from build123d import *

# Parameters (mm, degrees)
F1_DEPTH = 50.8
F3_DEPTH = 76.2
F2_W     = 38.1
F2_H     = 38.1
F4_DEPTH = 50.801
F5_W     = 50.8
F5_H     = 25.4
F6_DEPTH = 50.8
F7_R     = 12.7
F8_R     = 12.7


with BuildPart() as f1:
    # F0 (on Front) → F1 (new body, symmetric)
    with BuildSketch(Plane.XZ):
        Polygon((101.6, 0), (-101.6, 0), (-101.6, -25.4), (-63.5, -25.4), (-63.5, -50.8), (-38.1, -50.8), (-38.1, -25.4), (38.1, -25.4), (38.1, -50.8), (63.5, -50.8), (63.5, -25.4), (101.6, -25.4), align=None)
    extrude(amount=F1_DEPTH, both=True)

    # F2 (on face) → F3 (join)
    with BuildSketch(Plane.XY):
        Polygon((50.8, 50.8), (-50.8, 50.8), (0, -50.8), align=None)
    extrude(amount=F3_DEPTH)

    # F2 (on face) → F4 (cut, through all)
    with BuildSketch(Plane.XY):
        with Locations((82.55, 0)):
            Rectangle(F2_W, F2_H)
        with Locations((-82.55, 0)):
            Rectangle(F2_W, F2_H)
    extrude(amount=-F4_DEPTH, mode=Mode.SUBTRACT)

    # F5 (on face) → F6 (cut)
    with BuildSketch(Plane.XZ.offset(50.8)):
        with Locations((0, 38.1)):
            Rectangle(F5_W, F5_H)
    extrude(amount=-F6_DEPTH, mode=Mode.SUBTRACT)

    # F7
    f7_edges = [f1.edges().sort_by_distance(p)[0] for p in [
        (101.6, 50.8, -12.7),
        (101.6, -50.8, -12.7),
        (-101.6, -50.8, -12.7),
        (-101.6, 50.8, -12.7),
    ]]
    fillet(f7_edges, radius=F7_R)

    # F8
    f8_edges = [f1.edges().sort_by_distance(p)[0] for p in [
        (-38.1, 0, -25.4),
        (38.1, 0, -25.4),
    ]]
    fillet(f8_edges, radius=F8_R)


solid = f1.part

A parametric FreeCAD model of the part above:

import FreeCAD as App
import Part
import Sketcher
Q = App.Units.Quantity


def edges_at(feature, points):
    """Names of the edges that pass closest to the given points."""
    edges = feature.Shape.Edges
    near = lambda p: min(range(len(edges)), key=lambda i: edges[i].distToShape(Part.Vertex(*p))[0])
    return sorted({f"Edge{near(p) + 1}" for p in points})

doc = App.newDocument("Part")
body = doc.addObject("PartDesign::Body", "Body")

# Sketch on XZ plane
sketch1 = body.newObject("Sketcher::SketchObject", "Sketch")
sketch1.AttachmentSupport = (doc.getObject("XZ_Plane"), [""])
sketch1.MapMode = "FlatFace"
sketch1.addGeometry(Part.LineSegment(App.Vector(102, 0, 0), App.Vector(-102, 0, 0)), False)
sketch1.addGeometry(Part.LineSegment(App.Vector(-102, 0, 0), App.Vector(-102, -25, 0)), False)
sketch1.addGeometry(Part.LineSegment(App.Vector(-102, -25, 0), App.Vector(-64, -25, 0)), False)
sketch1.addGeometry(Part.LineSegment(App.Vector(-64, -25, 0), App.Vector(-64, -51, 0)), False)
sketch1.addGeometry(Part.LineSegment(App.Vector(-64, -51, 0), App.Vector(-38, -51, 0)), False)
sketch1.addGeometry(Part.LineSegment(App.Vector(-38, -51, 0), App.Vector(-38, -25, 0)), False)
sketch1.addGeometry(Part.LineSegment(App.Vector(-38, -25, 0), App.Vector(38, -25, 0)), False)
sketch1.addGeometry(Part.LineSegment(App.Vector(38, -25, 0), App.Vector(38, -51, 0)), False)
sketch1.addGeometry(Part.LineSegment(App.Vector(38, -51, 0), App.Vector(64, -51, 0)), False)
sketch1.addGeometry(Part.LineSegment(App.Vector(64, -51, 0), App.Vector(64, -25, 0)), False)
sketch1.addGeometry(Part.LineSegment(App.Vector(64, -25, 0), App.Vector(102, -25, 0)), False)
sketch1.addGeometry(Part.LineSegment(App.Vector(102, -25, 0), App.Vector(102, 0, 0)), False)
sketch1.addConstraint(Sketcher.Constraint("Coincident", 0, 2, 1, 1))
sketch1.addConstraint(Sketcher.Constraint("Coincident", 1, 2, 2, 1))
sketch1.addConstraint(Sketcher.Constraint("Coincident", 2, 2, 3, 1))
sketch1.addConstraint(Sketcher.Constraint("Coincident", 3, 2, 4, 1))
sketch1.addConstraint(Sketcher.Constraint("Coincident", 4, 2, 5, 1))
sketch1.addConstraint(Sketcher.Constraint("Coincident", 5, 2, 6, 1))
sketch1.addConstraint(Sketcher.Constraint("Coincident", 6, 2, 7, 1))
sketch1.addConstraint(Sketcher.Constraint("Coincident", 7, 2, 8, 1))
sketch1.addConstraint(Sketcher.Constraint("Coincident", 8, 2, 9, 1))
sketch1.addConstraint(Sketcher.Constraint("Coincident", 9, 2, 10, 1))
sketch1.addConstraint(Sketcher.Constraint("Coincident", 10, 2, 11, 1))
sketch1.addConstraint(Sketcher.Constraint("Coincident", 11, 2, 0, 1))
sketch1.addConstraint(Sketcher.Constraint("Horizontal", 0))
sketch1.addConstraint(Sketcher.Constraint("Vertical", 1))
sketch1.addConstraint(Sketcher.Constraint("Horizontal", 2))
sketch1.addConstraint(Sketcher.Constraint("Vertical", 3))
sketch1.addConstraint(Sketcher.Constraint("Horizontal", 4))
sketch1.addConstraint(Sketcher.Constraint("Vertical", 5))
sketch1.addConstraint(Sketcher.Constraint("Horizontal", 6))
sketch1.addConstraint(Sketcher.Constraint("Vertical", 7))
sketch1.addConstraint(Sketcher.Constraint("Horizontal", 8))
sketch1.addConstraint(Sketcher.Constraint("Vertical", 9))
sketch1.addConstraint(Sketcher.Constraint("Horizontal", 10))
sketch1.addConstraint(Sketcher.Constraint("Vertical", 11))
sketch1.addConstraint(Sketcher.Constraint("Symmetric", 0, 2, 11, 2, -1, 1))
sketch1.addConstraint(Sketcher.Constraint("Symmetric", 4, 2, 7, 2, -2))
sketch1.addConstraint(Sketcher.Constraint("Symmetric", 2, 2, 9, 2, -2))
sketch1.addConstraint(Sketcher.Constraint("Horizontal", 2, 2, 5, 2))
sketch1.addConstraint(Sketcher.Constraint("Equal", 8, 1))
sketch1.addConstraint(Sketcher.Constraint("Equal", 1, 3))
sketch1.addConstraint(Sketcher.Constraint("DistanceX", 0, 2, 0, 1, Q("8 in")))
sketch1.addConstraint(Sketcher.Constraint("DistanceX", 4, 1, 4, 2, Q("1 in")))
sketch1.addConstraint(Sketcher.Constraint("DistanceX", 6, 1, 6, 2, Q("3 in")))
pad1 = body.newObject("PartDesign::Pad", "Pad")
pad1.Profile = sketch1
pad1.Length = Q("4 in")
pad1.Midplane = True

# Sketch on XY plane
sketch2 = body.newObject("Sketcher::SketchObject", "Sketch001")
sketch2.AttachmentSupport = (doc.getObject("XY_Plane"), [""])
sketch2.MapMode = "FlatFace"
sketch2.addGeometry(Part.LineSegment(App.Vector(51, 51, 0), App.Vector(-51, 51, 0)), False)
sketch2.addGeometry(Part.LineSegment(App.Vector(-51, 51, 0), App.Vector(0, -51, 0)), False)
sketch2.addGeometry(Part.LineSegment(App.Vector(0, -51, 0), App.Vector(51, 51, 0)), False)
sketch2.addConstraint(Sketcher.Constraint("Coincident", 0, 2, 1, 1))
sketch2.addConstraint(Sketcher.Constraint("Coincident", 1, 2, 2, 1))
sketch2.addConstraint(Sketcher.Constraint("Coincident", 2, 2, 0, 1))
sketch2.addConstraint(Sketcher.Constraint("Horizontal", 0))
sketch2.addConstraint(Sketcher.Constraint("PointOnObject", 1, 2, -2))
sketch2.addConstraint(Sketcher.Constraint("Equal", 1, 2))
sketch2.addConstraint(Sketcher.Constraint("DistanceX", 0, 2, 0, 1, Q("4 in")))
sketch2.addConstraint(Sketcher.Constraint("DistanceY", -1, 1, 0, 2, Q("2 in")))
sketch2.addConstraint(Sketcher.Constraint("DistanceY", 1, 2, -1, 1, Q("2 in")))
pad2 = body.newObject("PartDesign::Pad", "Pad001")
pad2.Profile = sketch2
pad2.Length = Q("3 in")

# Sketch on XY plane
sketch3 = body.newObject("Sketcher::SketchObject", "Sketch002")
sketch3.AttachmentSupport = (doc.getObject("XY_Plane"), [""])
sketch3.MapMode = "FlatFace"
sketch3.addGeometry(Part.LineSegment(App.Vector(64, 19, 0), App.Vector(64, -19, 0)), False)
sketch3.addGeometry(Part.LineSegment(App.Vector(64, -19, 0), App.Vector(102, -19, 0)), False)
sketch3.addGeometry(Part.LineSegment(App.Vector(102, -19, 0), App.Vector(102, 19, 0)), False)
sketch3.addGeometry(Part.LineSegment(App.Vector(102, 19, 0), App.Vector(64, 19, 0)), False)
sketch3.addGeometry(Part.LineSegment(App.Vector(-102, 19, 0), App.Vector(-102, -19, 0)), False)
sketch3.addGeometry(Part.LineSegment(App.Vector(-102, -19, 0), App.Vector(-64, -19, 0)), False)
sketch3.addGeometry(Part.LineSegment(App.Vector(-64, -19, 0), App.Vector(-64, 19, 0)), False)
sketch3.addGeometry(Part.LineSegment(App.Vector(-64, 19, 0), App.Vector(-102, 19, 0)), False)
sketch3.addConstraint(Sketcher.Constraint("Coincident", 0, 2, 1, 1))
sketch3.addConstraint(Sketcher.Constraint("Coincident", 1, 2, 2, 1))
sketch3.addConstraint(Sketcher.Constraint("Coincident", 2, 2, 3, 1))
sketch3.addConstraint(Sketcher.Constraint("Coincident", 3, 2, 0, 1))
sketch3.addConstraint(Sketcher.Constraint("Coincident", 4, 2, 5, 1))
sketch3.addConstraint(Sketcher.Constraint("Coincident", 5, 2, 6, 1))
sketch3.addConstraint(Sketcher.Constraint("Coincident", 6, 2, 7, 1))
sketch3.addConstraint(Sketcher.Constraint("Coincident", 7, 2, 4, 1))
sketch3.addConstraint(Sketcher.Constraint("Vertical", 0))
sketch3.addConstraint(Sketcher.Constraint("Horizontal", 1))
sketch3.addConstraint(Sketcher.Constraint("Vertical", 2))
sketch3.addConstraint(Sketcher.Constraint("Horizontal", 3))
sketch3.addConstraint(Sketcher.Constraint("Vertical", 4))
sketch3.addConstraint(Sketcher.Constraint("Horizontal", 5))
sketch3.addConstraint(Sketcher.Constraint("Vertical", 6))
sketch3.addConstraint(Sketcher.Constraint("Horizontal", 7))
sketch3.addConstraint(Sketcher.Constraint("Symmetric", 2, 2, 4, 2, -1, 1))
sketch3.addConstraint(Sketcher.Constraint("Symmetric", 0, 2, 6, 2, -1, 1))
sketch3.addConstraint(Sketcher.Constraint("Horizontal", 1, 2, 4, 2))
sketch3.addConstraint(Sketcher.Constraint("Equal", 7, 0))
sketch3.addConstraint(Sketcher.Constraint("DistanceX", 1, 1, 1, 2, Q("1.5 in")))
sketch3.addConstraint(Sketcher.Constraint("DistanceX", -1, 1, 1, 2, Q("4 in")))
pocket1 = body.newObject("PartDesign::Pocket", "Pocket")
pocket1.Profile = sketch3
pocket1.Type = "ThroughAll"

# Sketch on XZ plane
sketch4 = body.newObject("Sketcher::SketchObject", "Sketch003")
sketch4.AttachmentSupport = (doc.getObject("XZ_Plane"), [""])
sketch4.MapMode = "FlatFace"
sketch4.AttachmentOffset = App.Placement(App.Vector(0, 0, 2 * 25.4), App.Rotation())
sketch4.addGeometry(Part.LineSegment(App.Vector(-25, 51, 0), App.Vector(-25, 25, 0)), False)
sketch4.addGeometry(Part.LineSegment(App.Vector(-25, 25, 0), App.Vector(25, 25, 0)), False)
sketch4.addGeometry(Part.LineSegment(App.Vector(25, 25, 0), App.Vector(25, 51, 0)), False)
sketch4.addGeometry(Part.LineSegment(App.Vector(25, 51, 0), App.Vector(-25, 51, 0)), False)
sketch4.addConstraint(Sketcher.Constraint("Coincident", 0, 2, 1, 1))
sketch4.addConstraint(Sketcher.Constraint("Coincident", 1, 2, 2, 1))
sketch4.addConstraint(Sketcher.Constraint("Coincident", 2, 2, 3, 1))
sketch4.addConstraint(Sketcher.Constraint("Coincident", 3, 2, 0, 1))
sketch4.addConstraint(Sketcher.Constraint("Vertical", 0))
sketch4.addConstraint(Sketcher.Constraint("Horizontal", 1))
sketch4.addConstraint(Sketcher.Constraint("Vertical", 2))
sketch4.addConstraint(Sketcher.Constraint("Horizontal", 3))
sketch4.addConstraint(Sketcher.Constraint("DistanceX", 1, 1, 1, 2, Q("2 in")))
sketch4.addConstraint(Sketcher.Constraint("DistanceY", 0, 2, 0, 1, Q("1 in")))
sketch4.addConstraint(Sketcher.Constraint("DistanceX", 0, 2, -1, 1, Q("1 in")))
sketch4.addConstraint(Sketcher.Constraint("DistanceY", -1, 1, 0, 2, Q("1 in")))
pocket2 = body.newObject("PartDesign::Pocket", "Pocket001")
pocket2.Profile = sketch4
pocket2.Length = Q("2 in")
doc.recompute()

fillet = body.newObject("PartDesign::Fillet", "Fillet")
fillet.Base = (pocket2, edges_at(pocket2, [
    (101.6, 50.8, -12.7),
    (101.6, -50.8, -12.7),
    (-101.6, -50.8, -12.7),
    (-101.6, 50.8, -12.7),
]))
fillet.Radius = Q("0.5 in")
doc.recompute()

fillet2 = body.newObject("PartDesign::Fillet", "Fillet001")
fillet2.Base = (fillet, edges_at(fillet, [(-38.1, 0, -25.4), (38.1, 0, -25.4)]))
fillet2.Radius = Q("0.5 in")

doc.recompute()
